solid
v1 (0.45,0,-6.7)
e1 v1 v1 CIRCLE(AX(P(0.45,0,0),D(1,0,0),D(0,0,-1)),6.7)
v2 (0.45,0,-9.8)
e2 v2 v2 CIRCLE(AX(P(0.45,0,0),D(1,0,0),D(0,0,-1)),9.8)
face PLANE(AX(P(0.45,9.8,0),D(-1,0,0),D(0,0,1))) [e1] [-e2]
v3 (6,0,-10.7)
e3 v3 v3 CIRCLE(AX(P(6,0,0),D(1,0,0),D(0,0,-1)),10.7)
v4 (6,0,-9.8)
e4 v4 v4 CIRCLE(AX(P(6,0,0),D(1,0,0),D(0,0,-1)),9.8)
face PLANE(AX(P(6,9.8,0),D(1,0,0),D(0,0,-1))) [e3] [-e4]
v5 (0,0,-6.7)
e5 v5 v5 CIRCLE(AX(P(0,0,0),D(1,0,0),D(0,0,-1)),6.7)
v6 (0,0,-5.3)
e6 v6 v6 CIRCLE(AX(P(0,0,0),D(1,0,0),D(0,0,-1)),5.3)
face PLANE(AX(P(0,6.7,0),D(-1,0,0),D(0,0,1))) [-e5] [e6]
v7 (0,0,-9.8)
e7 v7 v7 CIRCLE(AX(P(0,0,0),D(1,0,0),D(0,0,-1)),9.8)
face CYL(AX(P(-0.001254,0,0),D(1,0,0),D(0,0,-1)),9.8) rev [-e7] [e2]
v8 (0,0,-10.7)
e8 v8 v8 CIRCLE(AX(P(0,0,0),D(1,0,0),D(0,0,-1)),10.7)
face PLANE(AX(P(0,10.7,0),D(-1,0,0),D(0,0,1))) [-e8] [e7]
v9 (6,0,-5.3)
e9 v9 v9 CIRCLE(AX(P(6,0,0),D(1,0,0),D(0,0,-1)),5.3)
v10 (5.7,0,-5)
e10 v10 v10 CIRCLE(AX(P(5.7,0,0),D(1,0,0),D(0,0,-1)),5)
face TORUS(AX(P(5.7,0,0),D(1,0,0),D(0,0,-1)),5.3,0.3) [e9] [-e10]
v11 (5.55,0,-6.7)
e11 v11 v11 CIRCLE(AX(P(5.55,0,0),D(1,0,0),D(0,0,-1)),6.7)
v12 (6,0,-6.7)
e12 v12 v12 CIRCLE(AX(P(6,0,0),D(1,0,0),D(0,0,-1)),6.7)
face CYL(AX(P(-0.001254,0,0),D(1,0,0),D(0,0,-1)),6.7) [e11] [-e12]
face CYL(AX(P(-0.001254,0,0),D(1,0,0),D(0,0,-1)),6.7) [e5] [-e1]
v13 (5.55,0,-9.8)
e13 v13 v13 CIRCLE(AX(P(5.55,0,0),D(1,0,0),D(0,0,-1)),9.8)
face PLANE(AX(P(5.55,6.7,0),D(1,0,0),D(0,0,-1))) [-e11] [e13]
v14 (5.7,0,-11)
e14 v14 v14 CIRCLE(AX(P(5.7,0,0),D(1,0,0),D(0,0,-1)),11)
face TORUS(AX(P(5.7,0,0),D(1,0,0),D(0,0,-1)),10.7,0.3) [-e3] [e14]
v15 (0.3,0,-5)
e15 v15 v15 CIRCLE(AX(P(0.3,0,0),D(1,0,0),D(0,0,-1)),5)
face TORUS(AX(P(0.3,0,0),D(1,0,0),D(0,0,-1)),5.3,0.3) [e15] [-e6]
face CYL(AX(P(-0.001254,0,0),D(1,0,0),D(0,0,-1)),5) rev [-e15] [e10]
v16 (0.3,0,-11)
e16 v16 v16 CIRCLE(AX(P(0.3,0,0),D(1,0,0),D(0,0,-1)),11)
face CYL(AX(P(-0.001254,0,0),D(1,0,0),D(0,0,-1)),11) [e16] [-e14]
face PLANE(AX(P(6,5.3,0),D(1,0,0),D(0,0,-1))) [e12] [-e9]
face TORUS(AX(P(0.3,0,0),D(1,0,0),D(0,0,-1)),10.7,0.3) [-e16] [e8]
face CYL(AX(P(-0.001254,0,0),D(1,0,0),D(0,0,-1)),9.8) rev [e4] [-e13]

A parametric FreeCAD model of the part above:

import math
import FreeCAD as App
import Part
import Sketcher
from FreeCAD import Vector

doc = App.newDocument("Part")
body = doc.addObject("PartDesign::Body", "Body")

sketch1 = body.newObject("Sketcher::SketchObject", "Sketch")
sketch1.AttachmentSupport = (doc.getObject("XY_Plane"), [""])
sketch1.MapMode = "FlatFace"
sketch1.addGeometry(Part.LineSegment(Vector(0.3, 5, 0), Vector(5.7, 5, 0)), False)
sketch1.addGeometry(Part.ArcOfCircle(Part.Circle(Vector(5.7, 5.3, 0), Vector(0, 0, 1), 0.3), math.radians(-90), math.radians(0)), False)
sketch1.addGeometry(Part.LineSegment(Vector(6, 5.3, 0), Vector(6, 6.7, 0)), False)
sketch1.addGeometry(Part.LineSegment(Vector(6, 6.7, 0), Vector(5.55, 6.7, 0)), False)
sketch1.addGeometry(Part.LineSegment(Vector(5.55, 6.7, 0), Vector(5.55, 9.8, 0)), False)
sketch1.addGeometry(Part.LineSegment(Vector(5.55, 9.8, 0), Vector(6, 9.8, 0)), False)
sketch1.addGeometry(Part.LineSegment(Vector(6, 9.8, 0), Vector(6, 10.7, 0)), False)
sketch1.addGeometry(Part.ArcOfCircle(Part.Circle(Vector(5.7, 10.7, 0), Vector(0, 0, 1), 0.3), math.radians(0), math.radians(90)), False)
sketch1.addGeometry(Part.LineSegment(Vector(5.7, 11, 0), Vector(0.3, 11, 0)), False)
sketch1.addGeometry(Part.ArcOfCircle(Part.Circle(Vector(0.3, 10.7, 0), Vector(0, 0, 1), 0.3), math.radians(90), math.radians(180)), False)
sketch1.addGeometry(Part.LineSegment(Vector(0, 10.7, 0), Vector(0, 9.8, 0)), False)
sketch1.addGeometry(Part.LineSegment(Vector(0, 9.8, 0), Vector(0.45, 9.8, 0)), False)
sketch1.addGeometry(Part.LineSegment(Vector(0.45, 9.8, 0), Vector(0.45, 6.7, 0)), False)
sketch1.addGeometry(Part.LineSegment(Vector(0.45, 6.7, 0), Vector(0, 6.7, 0)), False)
sketch1.addGeometry(Part.LineSegment(Vector(0, 6.7, 0), Vector(0, 5.3, 0)), False)
sketch1.addGeometry(Part.ArcOfCircle(Part.Circle(Vector(0.3, 5.3, 0), Vector(0, 0, 1), 0.3), math.radians(-180), math.radians(-90)), False)
sketch1.addConstraint(Sketcher.Constraint("Tangent", 0, 2, 1, 1))
sketch1.addConstraint(Sketcher.Constraint("Tangent", 1, 2, 2, 1))
sketch1.addConstraint(Sketcher.Constraint("Coincident", 2, 2, 3, 1))
sketch1.addConstraint(Sketcher.Constraint("Coincident", 3, 2, 4, 1))
sketch1.addConstraint(Sketcher.Constraint("Coincident", 4, 2, 5, 1))
sketch1.addConstraint(Sketcher.Constraint("Coincident", 5, 2, 6, 1))
sketch1.addConstraint(Sketcher.Constraint("Tangent", 6, 2, 7, 1))
sketch1.addConstraint(Sketcher.Constraint("Tangent", 7, 2, 8, 1))
sketch1.addConstraint(Sketcher.Constraint("Tangent", 8, 2, 9, 1))
sketch1.addConstraint(Sketcher.Constraint("Tangent", 9, 2, 10, 1))
sketch1.addConstraint(Sketcher.Constraint("Coincident", 10, 2, 11, 1))
sketch1.addConstraint(Sketcher.Constraint("Coincident", 11, 2, 12, 1))
sketch1.addConstraint(Sketcher.Constraint("Coincident", 12, 2, 13, 1))
sketch1.addConstraint(Sketcher.Constraint("Coincident", 13, 2, 14, 1))
sketch1.addConstraint(Sketcher.Constraint("Tangent", 14, 2, 15, 1))
sketch1.addConstraint(Sketcher.Constraint("Tangent", 15, 2, 0, 1))
sketch1.addConstraint(Sketcher.Constraint("Horizontal", 0))
sketch1.addConstraint(Sketcher.Constraint("Vertical", 2))
sketch1.addConstraint(Sketcher.Constraint("Horizontal", 3))
sketch1.addConstraint(Sketcher.Constraint("Vertical", 4))
sketch1.addConstraint(Sketcher.Constraint("Horizontal", 5))
sketch1.addConstraint(Sketcher.Constraint("Vertical", 6))
sketch1.addConstraint(Sketcher.Constraint("Horizontal", 8))
sketch1.addConstraint(Sketcher.Constraint("Vertical", 10))
sketch1.addConstraint(Sketcher.Constraint("Horizontal", 11))
sketch1.addConstraint(Sketcher.Constraint("Vertical", 12))
sketch1.addConstraint(Sketcher.Constraint("Horizontal", 13))
sketch1.addConstraint(Sketcher.Constraint("Vertical", 14))
sketch1.addConstraint(Sketcher.Constraint("Equal", 1, 7))
sketch1.addConstraint(Sketcher.Constraint("Equal", 7, 9))
sketch1.addConstraint(Sketcher.Constraint("Equal", 9, 15))
sketch1.addConstraint(Sketcher.Constraint("PointOnObject", 9, 2, -2))
sketch1.addConstraint(Sketcher.Constraint("PointOnObject", 13, 2, -2))
sketch1.addConstraint(Sketcher.Constraint("Horizontal", 5, 2, 10, 2))
sketch1.addConstraint(Sketcher.Constraint("Horizontal", 3, 2, 12, 2))
sketch1.addConstraint(Sketcher.Constraint("Vertical", 1, 3, 7, 3))
sketch1.addConstraint(Sketcher.Constraint("Equal", 5, 11))
sketch1.addConstraint(Sketcher.Constraint("Radius", 1, 0.3))
sketch1.addConstraint(Sketcher.Constraint("DistanceX", 0, 1, 0, 2, 5.4))
sketch1.addConstraint(Sketcher.Constraint("DistanceY", 2, 1, 2, 2, 1.4))
sketch1.addConstraint(Sketcher.Constraint("DistanceY", 4, 1, 4, 2, 3.1))
sketch1.addConstraint(Sketcher.Constraint("DistanceY", 6, 1, 6, 2, 0.9))
sketch1.addConstraint(Sketcher.Constraint("DistanceY", -1, 1, 0, 2, 5.0))
sketch1.addConstraint(Sketcher.Constraint("DistanceX", 3, 2, 3, 1, 0.45))
revolution = body.newObject("PartDesign::Revolution", "Revolution")
revolution.Profile = sketch1
revolution.ReferenceAxis = (sketch1, ["H_Axis"])
revolution.Angle = 360

doc.recompute()
